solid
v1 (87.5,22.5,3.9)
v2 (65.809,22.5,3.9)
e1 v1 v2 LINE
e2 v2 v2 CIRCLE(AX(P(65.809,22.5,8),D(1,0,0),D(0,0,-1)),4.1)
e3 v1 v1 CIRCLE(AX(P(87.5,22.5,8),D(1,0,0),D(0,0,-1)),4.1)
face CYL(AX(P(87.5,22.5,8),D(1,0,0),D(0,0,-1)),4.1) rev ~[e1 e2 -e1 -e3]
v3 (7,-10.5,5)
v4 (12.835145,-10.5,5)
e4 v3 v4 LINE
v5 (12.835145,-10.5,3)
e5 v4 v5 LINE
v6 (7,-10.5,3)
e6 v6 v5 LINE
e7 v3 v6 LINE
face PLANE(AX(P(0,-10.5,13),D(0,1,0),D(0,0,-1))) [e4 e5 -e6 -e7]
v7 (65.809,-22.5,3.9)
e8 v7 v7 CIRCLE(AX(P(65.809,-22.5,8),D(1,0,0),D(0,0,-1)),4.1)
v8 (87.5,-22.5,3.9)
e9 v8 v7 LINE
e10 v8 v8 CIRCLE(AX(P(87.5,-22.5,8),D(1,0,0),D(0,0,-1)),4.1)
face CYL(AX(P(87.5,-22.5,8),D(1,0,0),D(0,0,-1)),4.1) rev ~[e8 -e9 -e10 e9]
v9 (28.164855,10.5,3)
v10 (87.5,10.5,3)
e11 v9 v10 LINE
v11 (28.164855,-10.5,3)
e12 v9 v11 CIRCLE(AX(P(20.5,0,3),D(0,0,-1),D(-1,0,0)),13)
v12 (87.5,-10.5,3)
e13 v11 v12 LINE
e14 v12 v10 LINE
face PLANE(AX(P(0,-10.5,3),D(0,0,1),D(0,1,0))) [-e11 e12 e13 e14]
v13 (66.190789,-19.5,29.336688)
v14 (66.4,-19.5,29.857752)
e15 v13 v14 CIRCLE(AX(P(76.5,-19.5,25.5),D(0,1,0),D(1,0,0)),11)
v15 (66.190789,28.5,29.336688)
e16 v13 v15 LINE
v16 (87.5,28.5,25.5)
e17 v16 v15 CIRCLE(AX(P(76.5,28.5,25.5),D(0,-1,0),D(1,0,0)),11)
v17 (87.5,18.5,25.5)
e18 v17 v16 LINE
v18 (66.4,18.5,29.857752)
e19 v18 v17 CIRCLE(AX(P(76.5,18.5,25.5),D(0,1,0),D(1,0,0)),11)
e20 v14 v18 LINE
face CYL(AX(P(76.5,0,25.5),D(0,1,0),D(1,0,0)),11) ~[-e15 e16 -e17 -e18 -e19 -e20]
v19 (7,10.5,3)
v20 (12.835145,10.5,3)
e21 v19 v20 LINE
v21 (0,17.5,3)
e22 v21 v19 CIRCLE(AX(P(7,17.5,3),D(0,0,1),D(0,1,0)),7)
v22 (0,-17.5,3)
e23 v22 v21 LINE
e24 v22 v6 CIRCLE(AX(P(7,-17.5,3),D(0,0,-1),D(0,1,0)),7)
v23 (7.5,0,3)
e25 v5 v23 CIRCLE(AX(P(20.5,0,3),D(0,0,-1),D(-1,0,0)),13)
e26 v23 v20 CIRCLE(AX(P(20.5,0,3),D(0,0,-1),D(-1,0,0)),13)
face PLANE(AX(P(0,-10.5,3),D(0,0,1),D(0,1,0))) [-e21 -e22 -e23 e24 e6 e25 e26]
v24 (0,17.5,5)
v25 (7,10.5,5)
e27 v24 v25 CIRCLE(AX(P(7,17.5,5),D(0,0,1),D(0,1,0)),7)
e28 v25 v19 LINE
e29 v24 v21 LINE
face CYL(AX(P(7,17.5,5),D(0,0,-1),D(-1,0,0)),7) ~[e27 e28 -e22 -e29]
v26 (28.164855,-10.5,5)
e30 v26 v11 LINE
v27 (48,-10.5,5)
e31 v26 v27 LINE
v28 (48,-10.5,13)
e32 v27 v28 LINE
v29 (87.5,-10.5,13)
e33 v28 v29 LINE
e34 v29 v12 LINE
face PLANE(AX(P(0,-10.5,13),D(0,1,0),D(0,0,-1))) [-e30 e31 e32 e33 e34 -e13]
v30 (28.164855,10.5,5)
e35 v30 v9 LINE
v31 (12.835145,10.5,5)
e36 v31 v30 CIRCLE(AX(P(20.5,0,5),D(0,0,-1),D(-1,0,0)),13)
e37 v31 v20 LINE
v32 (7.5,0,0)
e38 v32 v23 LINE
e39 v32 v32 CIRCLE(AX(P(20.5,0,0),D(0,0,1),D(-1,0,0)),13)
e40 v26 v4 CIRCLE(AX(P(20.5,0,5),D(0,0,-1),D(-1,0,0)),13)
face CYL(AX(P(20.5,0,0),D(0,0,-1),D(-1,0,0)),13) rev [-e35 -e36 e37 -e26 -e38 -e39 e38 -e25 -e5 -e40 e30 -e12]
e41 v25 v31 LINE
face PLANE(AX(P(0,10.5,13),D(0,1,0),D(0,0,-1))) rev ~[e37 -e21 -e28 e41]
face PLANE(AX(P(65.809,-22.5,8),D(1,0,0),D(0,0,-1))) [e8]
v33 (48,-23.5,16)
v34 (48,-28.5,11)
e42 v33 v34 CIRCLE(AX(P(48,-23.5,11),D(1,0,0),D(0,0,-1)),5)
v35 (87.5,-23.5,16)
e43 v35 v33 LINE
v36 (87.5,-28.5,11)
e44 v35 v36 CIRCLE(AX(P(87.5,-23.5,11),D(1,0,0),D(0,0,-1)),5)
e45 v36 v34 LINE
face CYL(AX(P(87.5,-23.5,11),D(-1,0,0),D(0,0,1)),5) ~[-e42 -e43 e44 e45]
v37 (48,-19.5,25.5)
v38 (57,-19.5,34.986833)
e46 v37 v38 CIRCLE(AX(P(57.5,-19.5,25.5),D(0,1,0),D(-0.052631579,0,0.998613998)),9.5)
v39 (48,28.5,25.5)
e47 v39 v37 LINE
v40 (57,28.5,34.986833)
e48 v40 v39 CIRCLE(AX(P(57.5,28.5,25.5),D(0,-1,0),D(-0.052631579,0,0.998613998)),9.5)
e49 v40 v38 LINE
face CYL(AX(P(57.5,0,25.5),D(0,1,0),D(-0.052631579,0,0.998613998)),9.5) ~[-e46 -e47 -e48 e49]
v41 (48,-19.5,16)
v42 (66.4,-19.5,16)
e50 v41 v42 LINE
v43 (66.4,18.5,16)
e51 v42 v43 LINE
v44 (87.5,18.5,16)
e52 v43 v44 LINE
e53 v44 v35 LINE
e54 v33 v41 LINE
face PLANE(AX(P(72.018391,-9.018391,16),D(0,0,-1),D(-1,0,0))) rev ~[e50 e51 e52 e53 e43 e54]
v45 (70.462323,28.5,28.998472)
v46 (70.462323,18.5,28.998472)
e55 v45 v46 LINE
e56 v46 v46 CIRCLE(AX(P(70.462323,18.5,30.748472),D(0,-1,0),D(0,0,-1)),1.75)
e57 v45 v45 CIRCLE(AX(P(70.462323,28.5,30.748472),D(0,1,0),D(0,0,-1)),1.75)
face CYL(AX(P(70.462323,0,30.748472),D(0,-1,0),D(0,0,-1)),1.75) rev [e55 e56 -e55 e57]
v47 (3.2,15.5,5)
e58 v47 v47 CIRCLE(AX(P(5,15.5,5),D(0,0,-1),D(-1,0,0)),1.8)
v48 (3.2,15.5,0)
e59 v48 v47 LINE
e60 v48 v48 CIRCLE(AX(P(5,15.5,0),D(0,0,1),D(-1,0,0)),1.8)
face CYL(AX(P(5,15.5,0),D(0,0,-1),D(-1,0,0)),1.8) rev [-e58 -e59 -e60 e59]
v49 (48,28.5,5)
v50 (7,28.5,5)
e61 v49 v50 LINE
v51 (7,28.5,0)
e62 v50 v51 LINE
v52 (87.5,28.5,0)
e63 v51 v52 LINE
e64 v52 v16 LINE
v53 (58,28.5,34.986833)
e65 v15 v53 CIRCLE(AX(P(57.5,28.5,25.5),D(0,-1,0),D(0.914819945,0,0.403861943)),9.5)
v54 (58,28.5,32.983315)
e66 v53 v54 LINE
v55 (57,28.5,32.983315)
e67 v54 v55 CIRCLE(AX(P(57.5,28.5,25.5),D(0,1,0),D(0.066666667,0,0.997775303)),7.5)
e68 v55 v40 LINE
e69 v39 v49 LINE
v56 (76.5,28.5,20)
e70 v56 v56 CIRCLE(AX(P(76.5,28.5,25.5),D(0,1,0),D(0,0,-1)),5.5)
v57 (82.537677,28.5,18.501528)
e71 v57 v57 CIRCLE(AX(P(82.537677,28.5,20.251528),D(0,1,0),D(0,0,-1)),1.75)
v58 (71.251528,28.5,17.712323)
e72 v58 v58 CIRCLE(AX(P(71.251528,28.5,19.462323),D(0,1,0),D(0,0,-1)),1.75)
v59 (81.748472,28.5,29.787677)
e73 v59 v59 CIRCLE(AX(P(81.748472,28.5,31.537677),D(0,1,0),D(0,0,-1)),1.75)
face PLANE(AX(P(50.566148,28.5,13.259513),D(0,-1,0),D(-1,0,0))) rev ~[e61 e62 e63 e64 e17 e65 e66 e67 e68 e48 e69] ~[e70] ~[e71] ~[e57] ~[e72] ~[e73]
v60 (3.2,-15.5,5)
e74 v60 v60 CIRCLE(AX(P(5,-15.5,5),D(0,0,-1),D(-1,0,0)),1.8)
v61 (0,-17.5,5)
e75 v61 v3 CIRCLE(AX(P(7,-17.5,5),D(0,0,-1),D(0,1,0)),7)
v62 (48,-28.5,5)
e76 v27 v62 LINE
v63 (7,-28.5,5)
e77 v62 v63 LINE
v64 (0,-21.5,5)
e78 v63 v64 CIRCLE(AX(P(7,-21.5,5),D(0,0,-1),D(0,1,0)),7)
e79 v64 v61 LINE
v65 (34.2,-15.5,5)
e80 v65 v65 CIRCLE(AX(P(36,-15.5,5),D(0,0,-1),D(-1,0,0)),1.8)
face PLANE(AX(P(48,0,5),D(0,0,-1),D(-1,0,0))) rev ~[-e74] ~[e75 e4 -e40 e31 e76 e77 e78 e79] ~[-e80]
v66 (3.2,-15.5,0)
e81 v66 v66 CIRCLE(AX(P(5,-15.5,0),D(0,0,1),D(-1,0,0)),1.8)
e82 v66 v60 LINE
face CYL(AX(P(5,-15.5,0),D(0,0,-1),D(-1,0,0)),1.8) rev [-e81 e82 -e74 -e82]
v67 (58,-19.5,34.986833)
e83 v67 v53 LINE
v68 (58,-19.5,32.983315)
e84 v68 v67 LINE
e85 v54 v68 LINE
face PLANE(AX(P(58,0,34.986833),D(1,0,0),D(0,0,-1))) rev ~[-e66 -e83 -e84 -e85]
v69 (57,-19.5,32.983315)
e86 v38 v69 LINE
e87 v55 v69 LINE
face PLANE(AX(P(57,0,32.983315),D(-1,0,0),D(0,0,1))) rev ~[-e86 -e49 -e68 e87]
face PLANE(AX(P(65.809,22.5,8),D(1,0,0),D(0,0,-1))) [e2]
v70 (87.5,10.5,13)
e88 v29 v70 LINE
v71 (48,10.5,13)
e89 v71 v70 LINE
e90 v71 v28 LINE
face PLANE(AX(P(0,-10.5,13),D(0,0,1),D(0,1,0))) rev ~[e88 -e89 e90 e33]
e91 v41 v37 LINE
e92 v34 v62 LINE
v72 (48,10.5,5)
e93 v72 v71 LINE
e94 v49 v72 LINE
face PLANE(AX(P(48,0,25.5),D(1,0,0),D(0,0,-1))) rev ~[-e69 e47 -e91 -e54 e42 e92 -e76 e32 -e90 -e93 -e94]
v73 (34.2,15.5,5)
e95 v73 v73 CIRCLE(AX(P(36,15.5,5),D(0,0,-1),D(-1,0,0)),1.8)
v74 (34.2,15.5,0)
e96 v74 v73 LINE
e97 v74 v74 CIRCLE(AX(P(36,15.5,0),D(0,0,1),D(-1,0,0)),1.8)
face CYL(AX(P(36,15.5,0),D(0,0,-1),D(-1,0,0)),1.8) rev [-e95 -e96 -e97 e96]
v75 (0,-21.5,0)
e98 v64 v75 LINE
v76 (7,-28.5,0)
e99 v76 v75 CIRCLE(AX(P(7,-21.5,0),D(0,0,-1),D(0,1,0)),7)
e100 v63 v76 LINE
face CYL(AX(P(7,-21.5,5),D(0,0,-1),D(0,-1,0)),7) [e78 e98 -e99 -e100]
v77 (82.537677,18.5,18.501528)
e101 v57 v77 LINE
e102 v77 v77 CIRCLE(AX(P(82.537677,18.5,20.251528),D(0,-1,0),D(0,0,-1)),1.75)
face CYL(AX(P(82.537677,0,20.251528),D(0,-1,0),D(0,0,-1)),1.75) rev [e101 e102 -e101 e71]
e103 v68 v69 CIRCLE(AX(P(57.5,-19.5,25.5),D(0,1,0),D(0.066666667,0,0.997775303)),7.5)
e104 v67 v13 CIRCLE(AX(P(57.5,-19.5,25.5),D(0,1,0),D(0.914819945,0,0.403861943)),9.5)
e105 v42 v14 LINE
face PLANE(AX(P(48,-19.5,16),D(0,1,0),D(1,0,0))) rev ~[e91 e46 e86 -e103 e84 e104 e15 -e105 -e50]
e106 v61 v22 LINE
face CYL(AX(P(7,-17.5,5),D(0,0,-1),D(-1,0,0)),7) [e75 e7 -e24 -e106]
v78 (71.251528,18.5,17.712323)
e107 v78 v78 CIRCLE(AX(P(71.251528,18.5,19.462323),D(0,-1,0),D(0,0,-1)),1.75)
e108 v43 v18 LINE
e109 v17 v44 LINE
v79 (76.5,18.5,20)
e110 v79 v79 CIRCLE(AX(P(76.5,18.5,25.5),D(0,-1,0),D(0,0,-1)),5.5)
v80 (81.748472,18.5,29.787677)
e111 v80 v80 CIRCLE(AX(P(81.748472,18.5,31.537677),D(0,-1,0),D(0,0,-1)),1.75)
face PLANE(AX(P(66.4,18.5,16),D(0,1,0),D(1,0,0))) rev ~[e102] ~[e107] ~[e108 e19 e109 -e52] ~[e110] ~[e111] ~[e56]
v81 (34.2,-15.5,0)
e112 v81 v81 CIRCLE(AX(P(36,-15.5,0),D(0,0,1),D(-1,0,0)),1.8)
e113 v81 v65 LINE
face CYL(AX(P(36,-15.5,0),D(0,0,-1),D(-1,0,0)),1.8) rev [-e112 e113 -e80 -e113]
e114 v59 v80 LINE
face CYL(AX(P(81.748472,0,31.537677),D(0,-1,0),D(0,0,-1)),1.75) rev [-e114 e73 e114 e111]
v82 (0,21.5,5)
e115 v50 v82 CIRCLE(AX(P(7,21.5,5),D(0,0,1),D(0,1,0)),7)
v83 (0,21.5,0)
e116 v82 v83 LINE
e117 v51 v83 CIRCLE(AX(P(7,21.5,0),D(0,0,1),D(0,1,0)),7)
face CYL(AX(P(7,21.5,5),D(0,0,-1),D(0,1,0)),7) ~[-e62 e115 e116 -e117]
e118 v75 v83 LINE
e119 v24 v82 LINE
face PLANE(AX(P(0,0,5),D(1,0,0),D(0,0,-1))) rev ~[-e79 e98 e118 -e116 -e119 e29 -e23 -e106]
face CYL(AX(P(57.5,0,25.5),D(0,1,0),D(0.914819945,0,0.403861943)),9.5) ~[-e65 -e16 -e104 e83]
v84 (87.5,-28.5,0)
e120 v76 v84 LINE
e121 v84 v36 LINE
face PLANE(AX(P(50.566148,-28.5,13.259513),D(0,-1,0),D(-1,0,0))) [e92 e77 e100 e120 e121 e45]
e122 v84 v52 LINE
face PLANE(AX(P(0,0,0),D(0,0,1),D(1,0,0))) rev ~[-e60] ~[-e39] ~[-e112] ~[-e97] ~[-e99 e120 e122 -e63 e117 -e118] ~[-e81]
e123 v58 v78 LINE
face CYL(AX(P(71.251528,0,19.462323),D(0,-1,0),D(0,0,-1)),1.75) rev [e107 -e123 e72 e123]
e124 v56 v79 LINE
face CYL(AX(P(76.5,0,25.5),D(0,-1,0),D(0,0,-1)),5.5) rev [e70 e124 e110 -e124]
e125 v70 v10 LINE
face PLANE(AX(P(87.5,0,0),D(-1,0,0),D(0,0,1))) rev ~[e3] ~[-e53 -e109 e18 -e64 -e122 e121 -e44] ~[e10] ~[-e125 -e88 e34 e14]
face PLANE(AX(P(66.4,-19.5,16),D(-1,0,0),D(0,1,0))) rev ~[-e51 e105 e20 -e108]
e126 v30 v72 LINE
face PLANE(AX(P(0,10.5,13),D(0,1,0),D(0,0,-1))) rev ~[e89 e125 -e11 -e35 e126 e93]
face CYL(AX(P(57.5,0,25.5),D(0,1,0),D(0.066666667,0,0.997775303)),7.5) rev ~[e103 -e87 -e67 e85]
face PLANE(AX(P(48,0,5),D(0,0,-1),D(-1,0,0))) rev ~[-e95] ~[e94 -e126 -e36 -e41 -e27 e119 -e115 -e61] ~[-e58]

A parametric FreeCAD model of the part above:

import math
import FreeCAD as App
import Part
import Sketcher
from FreeCAD import Vector


def edges_at(feature, points):
    """Names of the edges that pass closest to the given points."""
    edges = feature.Shape.Edges
    near = lambda p: min(range(len(edges)), key=lambda i: edges[i].distToShape(Part.Vertex(*p))[0])
    return sorted({f"Edge{near(p) + 1}" for p in points})

doc = App.newDocument("Part")
body = doc.addObject("PartDesign::Body", "Body")

# Sketch on XZ plane
sketch1 = doc.addObject("Sketcher::SketchObject", "Sketch")
body.addObject(sketch1)
sketch1.AttachmentSupport = (doc.XZ_Plane, [""])
sketch1.MapMode = "FlatFace"
sketch1.addGeometry([
    Part.LineSegment(Vector(58, 32.983315, 0), Vector(58, 34.986833, 0)),  # 0
    Part.ArcOfCircle(Part.Circle(Vector(57.5, 25.5, 0), Vector(0, 0, 1), 9.5), math.radians(23.81983), math.radians(86.983039)),  # 1
    Part.ArcOfCircle(Part.Circle(Vector(76.5, 25.5, 0), Vector(0, 0, 1), 11), math.radians(0), math.radians(159.586685)),  # 2
    Part.LineSegment(Vector(87.5, 25.5, 0), Vector(87.5, 0, 0)),  # 3
    Part.LineSegment(Vector(87.5, 0, 0), Vector(0, 0, 0)),  # 4
    Part.LineSegment(Vector(0, 0, 0), Vector(0, 5, 0)),  # 5
    Part.LineSegment(Vector(0, 5, 0), Vector(48, 5, 0)),  # 6
    Part.LineSegment(Vector(48, 5, 0), Vector(48, 25.5, 0)),  # 7
    Part.ArcOfCircle(Part.Circle(Vector(57.5, 25.5, 0), Vector(0, 0, 1), 9.5), math.radians(93.016961), math.radians(180)),  # 8
    Part.LineSegment(Vector(57, 34.986833, 0), Vector(57, 32.983315, 0)),  # 9
    Part.ArcOfCircle(Part.Circle(Vector(57.5, 25.5, 0), Vector(0, 0, 1), 7.5), math.radians(93.822554), math.radians(446.177446)),  # 10
    Part.Circle(Vector(81.748472, 31.537677, 0), Vector(0, 0, 1), 1.75),  # 11
    Part.Circle(Vector(70.462323, 30.748472, 0), Vector(0, 0, 1), 1.75),  # 12
    Part.Circle(Vector(76.5, 25.5, 0), Vector(0, 0, 1), 5.5),  # 13
    Part.Circle(Vector(82.537677, 20.251528, 0), Vector(0, 0, 1), 1.75),  # 14
    Part.Circle(Vector(71.251528, 19.462323, 0), Vector(0, 0, 1), 1.75),  # 15
], False)
sketch1.addConstraint([
    Sketcher.Constraint("Coincident", 0, 2, 1, 2),
    Sketcher.Constraint("Coincident", 1, 1, 2, 2),
    Sketcher.Constraint("Tangent", 2, 1, 3, 1),
    Sketcher.Constraint("Coincident", 3, 2, 4, 1),
    Sketcher.Constraint("Coincident", 4, 2, 5, 1),
    Sketcher.Constraint("Coincident", 5, 2, 6, 1),
    Sketcher.Constraint("Coincident", 6, 2, 7, 1),
    Sketcher.Constraint("Tangent", 7, 2, 8, 2),
    Sketcher.Constraint("Coincident", 8, 1, 9, 1),
    Sketcher.Constraint("Coincident", 9, 2, 10, 1),
    Sketcher.Constraint("Coincident", 10, 2, 0, 1),
    Sketcher.Constraint("Vertical", 0),
    Sketcher.Constraint("Vertical", 3),
    Sketcher.Constraint("Horizontal", 4),
    Sketcher.Constraint("Vertical", 5),
    Sketcher.Constraint("Horizontal", 6),
    Sketcher.Constraint("Vertical", 7),
    Sketcher.Constraint("Vertical", 9),
    Sketcher.Constraint("Coincident", 4, 2, -1, 1),
    Sketcher.Constraint("Coincident", 8, 3, 1, 3),
    Sketcher.Constraint("Coincident", 10, 3, 1, 3),
    Sketcher.Constraint("Coincident", 13, 3, 2, 3),
    Sketcher.Constraint("Equal", 1, 8),
    Sketcher.Constraint("Equal", 11, 12),
    Sketcher.Constraint("Equal", 12, 14),
    Sketcher.Constraint("Equal", 14, 15),
    Sketcher.Constraint("Horizontal", 1, 3, 2, 3),
    Sketcher.Constraint("Horizontal", 0, 2, 8, 1),
    Sketcher.Constraint("Diameter", 13, 11.0),
    Sketcher.Constraint("Radius", 2, 11.0),
    Sketcher.Constraint("Diameter", 11, 3.5),
    Sketcher.Constraint("Radius", 1, 9.5),
    Sketcher.Constraint("Radius", 10, 7.5),
    Sketcher.Constraint("DistanceX", 6, 1, 6, 2, 48.0),
    Sketcher.Constraint("DistanceY", 5, 1, 5, 2, 5.0),
    Sketcher.Constraint("DistanceX", 4, 2, 4, 1, 87.5),
    Sketcher.Constraint("DistanceY", 3, 2, 3, 1, 25.5),
    Sketcher.Constraint("DistanceX", -1, 1, 0, 2, 58.0),
    Sketcher.Constraint("DistanceX", 12, 3, 11, 3, 11.286149),
    Sketcher.Constraint("DistanceY", 14, 3, 11, 3, 11.286149),
    Sketcher.Constraint("DistanceX", 15, 3, 14, 3, 11.286149),
    Sketcher.Constraint("DistanceY", 15, 3, 12, 3, 11.286149),
    Sketcher.Constraint("DistanceY", 12, 3, 0, 2, 4.238361),
    Sketcher.Constraint("DistanceX", -1, 1, 11, 3, 81.748472),
    Sketcher.Constraint("DistanceY", -1, 1, 11, 3, 31.537677),
    Sketcher.Constraint("DistanceX", -1, 1, 14, 3, 82.537677),
])
pad1 = doc.addObject("PartDesign::Pad", "Pad")
body.addObject(pad1)
pad1.Profile = sketch1
pad1.Length = 57
pad1.Midplane = True

# Sketch on XY plane
sketch2 = doc.addObject("Sketcher::SketchObject", "Sketch001")
body.addObject(sketch2)
sketch2.AttachmentSupport = (doc.XY_Plane, [""])
sketch2.MapMode = "FlatFace"
sketch2.AttachmentOffset = App.Placement(Vector(0, 0, 16), App.Rotation())
sketch2.addGeometry([
    Part.LineSegment(Vector(88, 18.5, 0), Vector(66.4, 18.5, 0)),  # 0
    Part.LineSegment(Vector(66.4, 18.5, 0), Vector(66.4, -19.5, 0)),  # 1
    Part.LineSegment(Vector(66.4, -19.5, 0), Vector(48, -19.5, 0)),  # 2
    Part.LineSegment(Vector(48, -19.5, 0), Vector(48, -28.5, 0)),  # 3
    Part.LineSegment(Vector(48, -28.5, 0), Vector(88, -28.5, 0)),  # 4
    Part.LineSegment(Vector(88, -28.5, 0), Vector(88, 18.5, 0)),  # 5
], False)
sketch2.addConstraint([
    Sketcher.Constraint("Coincident", 0, 2, 1, 1),
    Sketcher.Constraint("Coincident", 1, 2, 2, 1),
    Sketcher.Constraint("Coincident", 2, 2, 3, 1),
    Sketcher.Constraint("Coincident", 3, 2, 4, 1),
    Sketcher.Constraint("Coincident", 4, 2, 5, 1),
    Sketcher.Constraint("Coincident", 5, 2, 0, 1),
    Sketcher.Constraint("Horizontal", 0),
    Sketcher.Constraint("Vertical", 1),
    Sketcher.Constraint("Horizontal", 2),
    Sketcher.Constraint("Vertical", 3),
    Sketcher.Constraint("Horizontal", 4),
    Sketcher.Constraint("Vertical", 5),
    Sketcher.Constraint("DistanceX", 4, 1, 4, 2, 40.0),
    Sketcher.Constraint("DistanceY", 1, 2, 1, 1, 38.0),
    Sketcher.Constraint("DistanceY", 3, 2, 3, 1, 9.0),
    Sketcher.Constraint("DistanceX", 0, 2, 0, 1, 21.6),
    Sketcher.Constraint("DistanceX", -1, 1, 2, 2, 48.0),
    Sketcher.Constraint("DistanceY", -1, 1, 0, 2, 18.5),
])
pocket1 = doc.addObject("PartDesign::Pocket", "Pocket")
body.addObject(pocket1)
pocket1.Profile = sketch2
pocket1.Type = "ThroughAll"
pocket1.Reversed = True

# Sketch on XY plane
sketch3 = doc.addObject("Sketcher::SketchObject", "Sketch002")
body.addObject(sketch3)
sketch3.AttachmentSupport = (doc.XY_Plane, [""])
sketch3.MapMode = "FlatFace"
sketch3.addGeometry([
    Part.Circle(Vector(5, 15.5, 0), Vector(0, 0, 1), 1.8),  # 0
    Part.Circle(Vector(36, 15.5, 0), Vector(0, 0, 1), 1.8),  # 1
    Part.Circle(Vector(5, -15.5, 0), Vector(0, 0, 1), 1.8),  # 2
    Part.Circle(Vector(36, -15.5, 0), Vector(0, 0, 1), 1.8),  # 3
    Part.Circle(Vector(20.5, 0, 0), Vector(0, 0, 1), 13),  # 4
], False)
sketch3.addConstraint([
    Sketcher.Constraint("Equal", 0, 1),
    Sketcher.Constraint("Equal", 1, 2),
    Sketcher.Constraint("Equal", 2, 3),
    Sketcher.Constraint("Symmetric", 0, 3, 2, 3, -1),
    Sketcher.Constraint("Symmetric", 1, 3, 3, 3, -1),
    Sketcher.Constraint("PointOnObject", 4, 3, -1),
    Sketcher.Constraint("Horizontal", 0, 3, 1, 3),
    Sketcher.Constraint("Diameter", 4, 26.0),
    Sketcher.Constraint("Diameter", 0, 3.6),
    Sketcher.Constraint("DistanceX", -1, 1, 0, 3, 5.0),
    Sketcher.Constraint("DistanceX", -1, 1, 1, 3, 36.0),
    Sketcher.Constraint("DistanceY", 2, 3, 0, 3, 31.0),
    Sketcher.Constraint("DistanceX", -1, 1, 4, 3, 20.5),
])
pocket2 = doc.addObject("PartDesign::Pocket", "Pocket001")
body.addObject(pocket2)
pocket2.Profile = sketch3
pocket2.Type = "ThroughAll"
pocket2.Reversed = True

# Sketch on YZ plane
sketch4 = doc.addObject("Sketcher::SketchObject", "Sketch003")
body.addObject(sketch4)
sketch4.AttachmentSupport = (doc.YZ_Plane, [""])
sketch4.MapMode = "FlatFace"
sketch4.addGeometry([
    Part.LineSegment(Vector(10.5, 13, 0), Vector(-10.5, 13, 0)),
    Part.LineSegment(Vector(-10.5, 13, 0), Vector(-10.5, 3, 0)),
    Part.LineSegment(Vector(-10.5, 3, 0), Vector(10.5, 3, 0)),
    Part.LineSegment(Vector(10.5, 3, 0), Vector(10.5, 13, 0)),
], False)
sketch4.addConstraint([
    Sketcher.Constraint("Coincident", 0, 2, 1, 1),
    Sketcher.Constraint("Coincident", 1, 2, 2, 1),
    Sketcher.Constraint("Coincident", 2, 2, 3, 1),
    Sketcher.Constraint("Coincident", 3, 2, 0, 1),
    Sketcher.Constraint("Horizontal", 0),
    Sketcher.Constraint("Vertical", 1),
    Sketcher.Constraint("Horizontal", 2),
    Sketcher.Constraint("Vertical", 3),
    Sketcher.Constraint("DistanceX", 0, 2, 0, 1, 21.0),
    Sketcher.Constraint("DistanceY", 1, 2, 1, 1, 10.0),
    Sketcher.Constraint("DistanceY", -1, 1, 0, 2, 13.0),
    Sketcher.Constraint("DistanceX", 0, 2, -1, 1, 10.5),
])
pocket3 = doc.addObject("PartDesign::Pocket", "Pocket002")
body.addObject(pocket3)
pocket3.Profile = sketch4
pocket3.Type = "ThroughAll"
pocket3.Reversed = True

# Sketch on YZ plane
sketch5 = doc.addObject("Sketcher::SketchObject", "Sketch004")
body.addObject(sketch5)
sketch5.AttachmentSupport = (doc.YZ_Plane, [""])
sketch5.MapMode = "FlatFace"
sketch5.AttachmentOffset = App.Placement(Vector(0, 0, 87.5), App.Rotation())
sketch5.addGeometry([
    Part.Circle(Vector(-22.5, 8, 0), Vector(0, 0, 1), 4.1),
    Part.Circle(Vector(22.5, 8, 0), Vector(0, 0, 1), 4.1),
], False)
sketch5.addConstraint([
    Sketcher.Constraint("Equal", 0, 1),
    Sketcher.Constraint("Symmetric", 0, 3, 1, 3, -2),
    Sketcher.Constraint("Diameter", 0, 8.2),
    Sketcher.Constraint("DistanceY", -1, 1, 0, 3, 8.0),
    Sketcher.Constraint("DistanceX", 0, 3, 1, 3, 45.0),
])
pocket4 = doc.addObject("PartDesign::Pocket", "Pocket003")
body.addObject(pocket4)
pocket4.Profile = sketch5
pocket4.Length = 21.691
doc.recompute()

fillet = doc.addObject("PartDesign::Fillet", "Fillet")
body.addObject(fillet)
fillet.Base = (pocket4, edges_at(pocket4, [(67.75, -28.5, 16)]))
fillet.Radius = 5
doc.recompute()

fillet2 = doc.addObject("PartDesign::Fillet", "Fillet001")
body.addObject(fillet2)
fillet2.Base = (fillet, edges_at(fillet, [
    (0, -10.5, 4),
    (0, 10.5, 4),
    (0, -28.5, 2.5),
    (0, 28.5, 2.5),
]))
fillet2.Radius = 7

doc.recompute()
